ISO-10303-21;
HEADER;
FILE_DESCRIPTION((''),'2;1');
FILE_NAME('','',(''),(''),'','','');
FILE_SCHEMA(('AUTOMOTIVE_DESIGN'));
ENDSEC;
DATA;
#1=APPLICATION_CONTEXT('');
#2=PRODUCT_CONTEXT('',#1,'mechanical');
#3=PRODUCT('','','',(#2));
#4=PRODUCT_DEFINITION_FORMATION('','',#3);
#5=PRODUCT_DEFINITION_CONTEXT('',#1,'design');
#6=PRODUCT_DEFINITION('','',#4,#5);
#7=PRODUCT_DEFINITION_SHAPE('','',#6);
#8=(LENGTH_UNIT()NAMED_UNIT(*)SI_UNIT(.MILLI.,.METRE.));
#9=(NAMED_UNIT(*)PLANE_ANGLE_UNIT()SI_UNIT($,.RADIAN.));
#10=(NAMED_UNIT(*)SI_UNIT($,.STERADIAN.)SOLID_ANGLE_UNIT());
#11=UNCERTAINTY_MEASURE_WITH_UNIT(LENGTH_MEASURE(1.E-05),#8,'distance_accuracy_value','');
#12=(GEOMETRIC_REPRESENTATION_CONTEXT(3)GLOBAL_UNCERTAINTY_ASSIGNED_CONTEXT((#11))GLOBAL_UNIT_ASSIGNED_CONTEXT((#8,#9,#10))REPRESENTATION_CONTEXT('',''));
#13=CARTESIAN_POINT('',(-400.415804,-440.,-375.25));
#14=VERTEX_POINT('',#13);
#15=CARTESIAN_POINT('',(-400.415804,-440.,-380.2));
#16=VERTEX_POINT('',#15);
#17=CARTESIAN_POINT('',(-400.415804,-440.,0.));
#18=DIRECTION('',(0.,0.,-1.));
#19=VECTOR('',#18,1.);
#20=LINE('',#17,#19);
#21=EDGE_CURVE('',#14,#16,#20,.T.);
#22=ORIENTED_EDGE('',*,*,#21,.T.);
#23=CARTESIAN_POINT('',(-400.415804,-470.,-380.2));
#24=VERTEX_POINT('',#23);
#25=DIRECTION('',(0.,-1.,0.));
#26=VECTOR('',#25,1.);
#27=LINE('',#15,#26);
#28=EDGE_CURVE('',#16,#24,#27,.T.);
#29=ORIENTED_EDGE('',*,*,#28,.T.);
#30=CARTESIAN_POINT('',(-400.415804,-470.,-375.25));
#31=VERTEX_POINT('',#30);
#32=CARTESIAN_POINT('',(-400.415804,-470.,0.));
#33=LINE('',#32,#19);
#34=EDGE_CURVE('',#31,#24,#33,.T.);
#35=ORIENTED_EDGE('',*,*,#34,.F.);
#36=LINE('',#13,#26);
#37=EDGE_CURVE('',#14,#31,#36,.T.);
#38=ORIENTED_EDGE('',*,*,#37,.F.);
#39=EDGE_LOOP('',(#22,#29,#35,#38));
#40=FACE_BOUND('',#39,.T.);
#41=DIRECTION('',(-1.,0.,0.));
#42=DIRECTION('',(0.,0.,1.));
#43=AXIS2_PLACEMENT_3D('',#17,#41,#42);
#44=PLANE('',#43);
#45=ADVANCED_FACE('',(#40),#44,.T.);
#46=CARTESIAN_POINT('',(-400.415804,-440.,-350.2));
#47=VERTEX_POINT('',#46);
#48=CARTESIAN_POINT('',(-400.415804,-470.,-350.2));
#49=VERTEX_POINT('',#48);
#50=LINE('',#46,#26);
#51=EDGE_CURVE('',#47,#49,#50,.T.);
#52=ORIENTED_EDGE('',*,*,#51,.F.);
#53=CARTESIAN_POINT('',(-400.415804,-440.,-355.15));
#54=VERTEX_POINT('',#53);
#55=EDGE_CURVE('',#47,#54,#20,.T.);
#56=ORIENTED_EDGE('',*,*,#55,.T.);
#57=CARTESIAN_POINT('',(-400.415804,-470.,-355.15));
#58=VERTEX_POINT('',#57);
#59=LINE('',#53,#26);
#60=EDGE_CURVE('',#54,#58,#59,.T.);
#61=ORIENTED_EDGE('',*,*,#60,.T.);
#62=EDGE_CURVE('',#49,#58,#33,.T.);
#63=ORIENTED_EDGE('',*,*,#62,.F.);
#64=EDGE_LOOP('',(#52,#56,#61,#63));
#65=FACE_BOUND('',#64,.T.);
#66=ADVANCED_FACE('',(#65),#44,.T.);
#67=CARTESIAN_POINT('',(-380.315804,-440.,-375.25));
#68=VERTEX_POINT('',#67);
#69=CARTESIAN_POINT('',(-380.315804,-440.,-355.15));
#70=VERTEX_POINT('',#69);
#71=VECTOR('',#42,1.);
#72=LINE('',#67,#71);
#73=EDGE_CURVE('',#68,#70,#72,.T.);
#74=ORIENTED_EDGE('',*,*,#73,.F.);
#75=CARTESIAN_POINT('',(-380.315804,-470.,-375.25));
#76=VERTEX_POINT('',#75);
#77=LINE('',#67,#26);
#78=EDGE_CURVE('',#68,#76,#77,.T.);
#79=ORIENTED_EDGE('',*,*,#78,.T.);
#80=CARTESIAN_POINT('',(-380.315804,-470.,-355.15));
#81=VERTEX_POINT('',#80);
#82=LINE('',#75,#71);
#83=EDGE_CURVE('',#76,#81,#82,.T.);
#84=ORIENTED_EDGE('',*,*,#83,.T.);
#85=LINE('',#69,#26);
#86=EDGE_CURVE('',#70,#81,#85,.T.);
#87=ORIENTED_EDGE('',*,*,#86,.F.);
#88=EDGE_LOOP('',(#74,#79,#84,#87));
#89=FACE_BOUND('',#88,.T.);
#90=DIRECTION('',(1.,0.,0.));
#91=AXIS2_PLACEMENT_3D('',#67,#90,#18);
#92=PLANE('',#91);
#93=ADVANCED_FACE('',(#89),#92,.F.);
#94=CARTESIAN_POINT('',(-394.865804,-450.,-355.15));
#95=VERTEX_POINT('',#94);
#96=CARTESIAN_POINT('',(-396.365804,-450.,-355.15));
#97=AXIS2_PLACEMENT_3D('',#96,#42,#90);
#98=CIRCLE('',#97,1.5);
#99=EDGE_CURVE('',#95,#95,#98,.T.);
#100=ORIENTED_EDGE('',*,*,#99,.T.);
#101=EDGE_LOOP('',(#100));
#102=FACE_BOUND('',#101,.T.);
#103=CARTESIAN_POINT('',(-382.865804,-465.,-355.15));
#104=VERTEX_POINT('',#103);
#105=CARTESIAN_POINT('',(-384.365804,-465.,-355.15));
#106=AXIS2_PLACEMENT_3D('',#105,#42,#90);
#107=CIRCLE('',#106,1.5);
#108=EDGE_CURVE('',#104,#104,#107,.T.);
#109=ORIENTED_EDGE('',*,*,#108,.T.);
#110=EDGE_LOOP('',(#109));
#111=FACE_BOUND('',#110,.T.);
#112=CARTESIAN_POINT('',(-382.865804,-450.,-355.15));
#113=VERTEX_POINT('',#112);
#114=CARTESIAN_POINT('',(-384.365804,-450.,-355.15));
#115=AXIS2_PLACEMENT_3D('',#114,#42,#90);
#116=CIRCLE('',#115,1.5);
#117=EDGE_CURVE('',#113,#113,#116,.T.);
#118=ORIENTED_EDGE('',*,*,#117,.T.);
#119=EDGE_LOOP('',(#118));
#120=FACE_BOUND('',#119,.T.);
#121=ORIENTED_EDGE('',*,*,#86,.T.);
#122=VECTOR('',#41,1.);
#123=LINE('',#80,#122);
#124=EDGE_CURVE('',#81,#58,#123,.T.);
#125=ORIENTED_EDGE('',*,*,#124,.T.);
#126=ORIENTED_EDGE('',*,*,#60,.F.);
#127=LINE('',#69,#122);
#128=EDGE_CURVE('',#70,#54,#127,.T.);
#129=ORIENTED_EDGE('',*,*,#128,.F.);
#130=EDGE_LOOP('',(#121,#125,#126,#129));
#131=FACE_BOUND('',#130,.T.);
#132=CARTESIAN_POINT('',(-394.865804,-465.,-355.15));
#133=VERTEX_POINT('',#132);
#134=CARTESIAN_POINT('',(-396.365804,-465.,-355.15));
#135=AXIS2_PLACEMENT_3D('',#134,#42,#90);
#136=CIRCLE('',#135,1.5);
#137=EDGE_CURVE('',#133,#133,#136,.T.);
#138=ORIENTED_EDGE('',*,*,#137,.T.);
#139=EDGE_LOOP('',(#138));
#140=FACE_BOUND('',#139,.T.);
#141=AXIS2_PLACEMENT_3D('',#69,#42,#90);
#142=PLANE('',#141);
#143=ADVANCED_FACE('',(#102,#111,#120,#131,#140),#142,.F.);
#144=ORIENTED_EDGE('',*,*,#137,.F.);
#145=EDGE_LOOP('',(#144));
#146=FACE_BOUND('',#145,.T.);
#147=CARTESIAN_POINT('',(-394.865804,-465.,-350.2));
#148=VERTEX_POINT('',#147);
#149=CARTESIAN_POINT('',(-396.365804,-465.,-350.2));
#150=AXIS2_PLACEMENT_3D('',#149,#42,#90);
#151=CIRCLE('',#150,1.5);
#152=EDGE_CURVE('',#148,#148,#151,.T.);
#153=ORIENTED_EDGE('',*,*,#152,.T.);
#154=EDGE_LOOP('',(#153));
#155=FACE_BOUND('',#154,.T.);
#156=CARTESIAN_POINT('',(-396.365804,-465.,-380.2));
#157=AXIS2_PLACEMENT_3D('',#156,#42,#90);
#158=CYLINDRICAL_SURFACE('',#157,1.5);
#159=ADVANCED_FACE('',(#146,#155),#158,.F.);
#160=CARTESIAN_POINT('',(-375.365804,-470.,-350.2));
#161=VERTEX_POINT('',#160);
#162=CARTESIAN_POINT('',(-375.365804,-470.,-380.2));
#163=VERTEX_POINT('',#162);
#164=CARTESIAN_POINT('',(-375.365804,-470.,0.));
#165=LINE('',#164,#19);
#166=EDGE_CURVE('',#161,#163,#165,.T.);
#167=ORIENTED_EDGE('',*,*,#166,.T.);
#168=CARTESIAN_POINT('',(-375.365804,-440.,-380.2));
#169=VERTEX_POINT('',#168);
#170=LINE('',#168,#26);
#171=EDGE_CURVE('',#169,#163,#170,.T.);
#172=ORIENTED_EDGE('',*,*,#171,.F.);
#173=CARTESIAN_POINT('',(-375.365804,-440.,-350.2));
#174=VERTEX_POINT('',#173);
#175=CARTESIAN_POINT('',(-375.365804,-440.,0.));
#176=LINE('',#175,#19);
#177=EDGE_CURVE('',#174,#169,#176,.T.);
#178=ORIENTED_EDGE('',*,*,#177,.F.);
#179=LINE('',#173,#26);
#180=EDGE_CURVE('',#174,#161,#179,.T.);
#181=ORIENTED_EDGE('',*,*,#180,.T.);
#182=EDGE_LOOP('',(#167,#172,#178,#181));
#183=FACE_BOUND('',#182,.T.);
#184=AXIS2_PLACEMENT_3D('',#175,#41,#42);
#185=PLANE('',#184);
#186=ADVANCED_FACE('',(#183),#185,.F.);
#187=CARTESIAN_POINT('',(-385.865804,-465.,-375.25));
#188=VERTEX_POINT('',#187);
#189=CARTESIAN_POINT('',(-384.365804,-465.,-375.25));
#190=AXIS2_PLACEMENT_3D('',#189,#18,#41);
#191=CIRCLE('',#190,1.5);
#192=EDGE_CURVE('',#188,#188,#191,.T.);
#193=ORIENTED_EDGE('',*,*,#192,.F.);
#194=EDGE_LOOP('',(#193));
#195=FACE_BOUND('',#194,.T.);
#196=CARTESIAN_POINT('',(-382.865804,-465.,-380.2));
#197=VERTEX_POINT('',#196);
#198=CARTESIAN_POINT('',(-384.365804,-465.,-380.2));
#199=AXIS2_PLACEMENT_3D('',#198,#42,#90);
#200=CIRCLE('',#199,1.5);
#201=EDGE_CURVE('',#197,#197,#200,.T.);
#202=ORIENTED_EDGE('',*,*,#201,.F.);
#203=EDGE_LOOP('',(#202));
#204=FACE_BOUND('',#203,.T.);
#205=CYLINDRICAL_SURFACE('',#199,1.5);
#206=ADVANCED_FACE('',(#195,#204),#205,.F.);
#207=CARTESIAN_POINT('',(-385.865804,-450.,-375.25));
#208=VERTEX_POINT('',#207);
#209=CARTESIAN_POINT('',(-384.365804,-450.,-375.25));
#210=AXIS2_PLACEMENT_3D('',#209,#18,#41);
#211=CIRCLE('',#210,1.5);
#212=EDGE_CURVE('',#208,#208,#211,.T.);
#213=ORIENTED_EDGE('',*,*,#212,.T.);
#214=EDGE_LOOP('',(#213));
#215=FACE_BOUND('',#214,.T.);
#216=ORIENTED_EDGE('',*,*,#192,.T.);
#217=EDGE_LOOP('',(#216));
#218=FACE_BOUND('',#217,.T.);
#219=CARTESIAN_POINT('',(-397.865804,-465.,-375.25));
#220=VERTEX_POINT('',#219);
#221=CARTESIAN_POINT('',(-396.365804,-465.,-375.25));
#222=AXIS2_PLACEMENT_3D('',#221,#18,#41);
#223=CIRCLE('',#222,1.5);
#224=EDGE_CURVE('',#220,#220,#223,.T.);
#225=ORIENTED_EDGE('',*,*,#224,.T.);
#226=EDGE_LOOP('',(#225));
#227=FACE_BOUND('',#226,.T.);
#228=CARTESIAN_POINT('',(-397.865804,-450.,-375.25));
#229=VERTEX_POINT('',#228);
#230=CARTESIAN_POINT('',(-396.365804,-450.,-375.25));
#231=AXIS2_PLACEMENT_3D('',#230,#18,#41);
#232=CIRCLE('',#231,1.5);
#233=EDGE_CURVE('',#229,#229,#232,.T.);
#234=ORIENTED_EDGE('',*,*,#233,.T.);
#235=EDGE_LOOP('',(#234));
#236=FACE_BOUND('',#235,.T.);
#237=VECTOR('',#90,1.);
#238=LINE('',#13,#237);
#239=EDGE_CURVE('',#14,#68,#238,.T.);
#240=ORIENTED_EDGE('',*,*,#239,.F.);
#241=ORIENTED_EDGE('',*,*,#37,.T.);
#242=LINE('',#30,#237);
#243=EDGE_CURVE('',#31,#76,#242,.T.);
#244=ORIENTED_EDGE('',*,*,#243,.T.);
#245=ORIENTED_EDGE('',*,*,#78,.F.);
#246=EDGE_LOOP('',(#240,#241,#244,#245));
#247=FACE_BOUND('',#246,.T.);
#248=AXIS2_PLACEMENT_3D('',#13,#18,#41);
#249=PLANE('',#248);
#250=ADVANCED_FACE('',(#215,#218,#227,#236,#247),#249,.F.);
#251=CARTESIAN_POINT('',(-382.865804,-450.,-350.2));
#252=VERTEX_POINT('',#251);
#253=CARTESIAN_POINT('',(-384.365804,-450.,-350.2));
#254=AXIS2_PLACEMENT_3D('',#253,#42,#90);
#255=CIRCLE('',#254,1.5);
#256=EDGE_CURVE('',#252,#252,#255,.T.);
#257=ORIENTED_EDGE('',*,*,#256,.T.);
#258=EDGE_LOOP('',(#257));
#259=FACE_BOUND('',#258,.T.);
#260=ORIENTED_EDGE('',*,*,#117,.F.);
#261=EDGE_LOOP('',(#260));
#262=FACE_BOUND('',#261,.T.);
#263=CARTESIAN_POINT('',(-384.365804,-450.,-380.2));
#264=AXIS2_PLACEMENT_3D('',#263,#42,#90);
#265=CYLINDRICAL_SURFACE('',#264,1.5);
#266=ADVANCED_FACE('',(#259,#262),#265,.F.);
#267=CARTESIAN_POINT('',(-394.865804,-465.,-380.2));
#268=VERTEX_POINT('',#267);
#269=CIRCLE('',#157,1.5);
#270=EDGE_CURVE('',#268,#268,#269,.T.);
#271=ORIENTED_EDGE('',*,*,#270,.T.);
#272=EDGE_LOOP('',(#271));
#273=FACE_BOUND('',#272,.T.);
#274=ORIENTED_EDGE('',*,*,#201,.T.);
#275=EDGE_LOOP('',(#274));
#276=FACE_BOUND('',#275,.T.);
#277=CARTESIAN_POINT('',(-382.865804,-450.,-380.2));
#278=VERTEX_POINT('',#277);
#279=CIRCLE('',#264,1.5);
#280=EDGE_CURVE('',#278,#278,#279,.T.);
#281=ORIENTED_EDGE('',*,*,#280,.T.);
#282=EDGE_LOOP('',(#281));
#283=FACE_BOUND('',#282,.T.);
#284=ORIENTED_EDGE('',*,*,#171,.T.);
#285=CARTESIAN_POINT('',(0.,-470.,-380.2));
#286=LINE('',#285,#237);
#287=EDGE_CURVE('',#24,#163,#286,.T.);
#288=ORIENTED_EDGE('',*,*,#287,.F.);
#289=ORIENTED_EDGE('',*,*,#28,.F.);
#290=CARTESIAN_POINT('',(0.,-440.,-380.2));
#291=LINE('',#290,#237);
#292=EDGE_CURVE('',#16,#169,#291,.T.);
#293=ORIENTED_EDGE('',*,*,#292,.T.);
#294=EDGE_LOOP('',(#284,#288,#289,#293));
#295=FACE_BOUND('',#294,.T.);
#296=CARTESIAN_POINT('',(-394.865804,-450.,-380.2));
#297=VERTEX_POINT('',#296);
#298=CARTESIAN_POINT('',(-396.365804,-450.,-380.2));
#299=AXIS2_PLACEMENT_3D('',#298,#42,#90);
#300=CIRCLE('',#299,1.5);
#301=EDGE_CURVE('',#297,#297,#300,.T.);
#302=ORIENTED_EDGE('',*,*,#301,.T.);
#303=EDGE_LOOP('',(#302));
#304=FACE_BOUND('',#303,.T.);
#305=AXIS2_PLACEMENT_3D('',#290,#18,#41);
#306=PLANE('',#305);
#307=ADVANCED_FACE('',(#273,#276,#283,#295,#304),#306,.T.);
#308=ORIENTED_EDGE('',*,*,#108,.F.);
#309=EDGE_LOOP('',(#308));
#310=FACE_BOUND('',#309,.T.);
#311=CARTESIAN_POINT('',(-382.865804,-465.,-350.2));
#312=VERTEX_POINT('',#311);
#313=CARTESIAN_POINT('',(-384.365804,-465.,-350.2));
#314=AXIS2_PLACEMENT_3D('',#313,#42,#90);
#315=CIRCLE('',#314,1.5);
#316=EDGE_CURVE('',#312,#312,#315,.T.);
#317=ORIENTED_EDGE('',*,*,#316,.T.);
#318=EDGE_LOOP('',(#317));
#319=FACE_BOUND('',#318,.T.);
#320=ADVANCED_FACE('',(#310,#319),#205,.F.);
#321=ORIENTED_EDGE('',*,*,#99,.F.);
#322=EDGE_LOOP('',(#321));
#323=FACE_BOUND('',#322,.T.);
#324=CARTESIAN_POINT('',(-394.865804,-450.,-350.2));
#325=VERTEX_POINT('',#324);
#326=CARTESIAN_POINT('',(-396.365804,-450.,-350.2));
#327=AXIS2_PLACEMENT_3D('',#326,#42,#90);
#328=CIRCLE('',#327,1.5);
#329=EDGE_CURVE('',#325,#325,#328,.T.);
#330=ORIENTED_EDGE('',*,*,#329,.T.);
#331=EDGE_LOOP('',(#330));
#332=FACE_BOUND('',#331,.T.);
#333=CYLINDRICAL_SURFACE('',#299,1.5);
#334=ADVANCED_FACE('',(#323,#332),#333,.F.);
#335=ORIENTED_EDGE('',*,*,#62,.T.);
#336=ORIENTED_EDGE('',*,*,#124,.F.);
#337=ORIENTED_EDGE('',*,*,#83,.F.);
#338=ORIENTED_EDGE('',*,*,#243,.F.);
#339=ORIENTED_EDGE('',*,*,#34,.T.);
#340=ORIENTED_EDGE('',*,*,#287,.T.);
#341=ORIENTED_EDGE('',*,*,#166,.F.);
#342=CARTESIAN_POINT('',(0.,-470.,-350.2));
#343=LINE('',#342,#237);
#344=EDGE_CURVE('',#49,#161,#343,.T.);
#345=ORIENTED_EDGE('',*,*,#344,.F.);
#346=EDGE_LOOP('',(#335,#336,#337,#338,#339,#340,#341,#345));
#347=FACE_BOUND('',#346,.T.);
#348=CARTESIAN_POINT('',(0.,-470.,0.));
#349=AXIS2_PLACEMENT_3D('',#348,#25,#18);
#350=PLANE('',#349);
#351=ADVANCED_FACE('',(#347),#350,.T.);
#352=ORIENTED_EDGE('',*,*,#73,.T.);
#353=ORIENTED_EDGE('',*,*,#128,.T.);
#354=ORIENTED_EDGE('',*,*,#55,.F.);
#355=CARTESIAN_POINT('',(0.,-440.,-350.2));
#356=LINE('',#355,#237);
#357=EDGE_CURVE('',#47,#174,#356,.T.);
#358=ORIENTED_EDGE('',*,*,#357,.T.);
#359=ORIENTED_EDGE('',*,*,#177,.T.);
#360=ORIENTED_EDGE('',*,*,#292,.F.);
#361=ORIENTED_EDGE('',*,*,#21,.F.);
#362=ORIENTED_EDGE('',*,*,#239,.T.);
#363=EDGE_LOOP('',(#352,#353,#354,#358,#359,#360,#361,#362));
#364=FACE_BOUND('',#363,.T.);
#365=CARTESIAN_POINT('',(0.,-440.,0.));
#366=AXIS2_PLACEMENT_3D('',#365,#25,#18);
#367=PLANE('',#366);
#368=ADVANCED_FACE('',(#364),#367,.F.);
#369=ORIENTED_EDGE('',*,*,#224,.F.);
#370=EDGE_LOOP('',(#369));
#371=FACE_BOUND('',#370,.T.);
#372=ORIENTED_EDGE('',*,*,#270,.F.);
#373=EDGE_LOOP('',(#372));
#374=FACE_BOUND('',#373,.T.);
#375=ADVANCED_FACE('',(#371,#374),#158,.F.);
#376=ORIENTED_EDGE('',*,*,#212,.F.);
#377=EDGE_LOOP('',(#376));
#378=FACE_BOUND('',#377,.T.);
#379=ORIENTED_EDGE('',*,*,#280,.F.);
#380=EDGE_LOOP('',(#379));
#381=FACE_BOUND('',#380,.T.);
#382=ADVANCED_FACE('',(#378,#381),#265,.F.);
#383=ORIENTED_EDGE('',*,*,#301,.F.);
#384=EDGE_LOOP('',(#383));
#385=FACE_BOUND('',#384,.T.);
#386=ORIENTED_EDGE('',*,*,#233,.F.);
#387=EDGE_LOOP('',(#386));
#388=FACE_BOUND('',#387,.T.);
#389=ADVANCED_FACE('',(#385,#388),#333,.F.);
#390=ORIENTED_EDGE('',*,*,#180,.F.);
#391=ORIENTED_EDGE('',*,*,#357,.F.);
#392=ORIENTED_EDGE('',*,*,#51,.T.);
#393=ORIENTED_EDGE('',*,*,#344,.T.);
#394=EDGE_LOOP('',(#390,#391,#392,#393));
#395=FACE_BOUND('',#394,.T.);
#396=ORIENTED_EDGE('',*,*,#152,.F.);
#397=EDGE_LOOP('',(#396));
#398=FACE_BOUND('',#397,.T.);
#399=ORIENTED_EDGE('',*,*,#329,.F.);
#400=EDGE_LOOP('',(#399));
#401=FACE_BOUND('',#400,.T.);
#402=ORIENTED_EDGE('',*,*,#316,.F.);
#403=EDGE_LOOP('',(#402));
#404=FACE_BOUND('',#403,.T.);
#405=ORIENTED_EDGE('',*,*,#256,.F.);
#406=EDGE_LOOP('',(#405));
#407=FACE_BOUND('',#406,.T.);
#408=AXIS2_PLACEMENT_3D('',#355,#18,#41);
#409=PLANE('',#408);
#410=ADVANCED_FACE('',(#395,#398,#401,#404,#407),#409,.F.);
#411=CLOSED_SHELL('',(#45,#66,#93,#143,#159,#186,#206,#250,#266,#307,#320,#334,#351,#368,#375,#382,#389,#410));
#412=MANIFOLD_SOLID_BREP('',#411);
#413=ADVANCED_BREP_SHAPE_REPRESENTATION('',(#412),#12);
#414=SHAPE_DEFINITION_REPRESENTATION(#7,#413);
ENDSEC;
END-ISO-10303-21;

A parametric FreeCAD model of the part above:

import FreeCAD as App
import Part
import Sketcher
Q = App.Units.Quantity


def add_polygon(sketch, points):
    """Adds a closed chain of lines whose ends are joined by coincident constraints."""
    first, n = sketch.GeometryCount, len(points)
    for a, b in zip(points, points[1:] + points[:1]):
        sketch.addGeometry(Part.LineSegment(App.Vector(*a, 0), App.Vector(*b, 0)), False)
    for i in range(n):
        sketch.addConstraint(Sketcher.Constraint("Coincident", first + i, 2, first + (i + 1) % n, 1))

doc = App.newDocument("Part")
params = doc.addObject("Spreadsheet::Sheet", "Params")
for row, (alias, value) in enumerate([
    ("sketch1_height", "30 mm"),
    ("sketch1_width", "20.1 mm"),
    ("sketch1_width2", "25.05 mm"),
    ("pad1_length", "30 mm"),
    ("sketch2_diameter", "3 mm"),
    ("pocket1_length", "30 mm"),
], start=1):
    params.set(f"A{row}", alias)
    params.set(f"B{row}", "=" + value)
    params.setAlias(f"B{row}", alias)

body = doc.addObject("PartDesign::Body", "Body")

# Sketch on XZ plane
sketch1 = body.newObject("Sketcher::SketchObject", "Sketch")
sketch1.AttachmentSupport = (doc.getObject("XZ_Plane"), [""])
sketch1.MapMode = "FlatFace"
sketch1.AttachmentOffset = App.Placement(App.Vector(0, 0, 470), App.Rotation())
add_polygon(sketch1, [(-400.415804, -350.2), (-400.415804, -355.15), (-380.315804, -355.15), (-380.315804, -375.25), (-400.415804, -375.25), (-400.415804, -380.2), (-375.365804, -380.2), (-375.365804, -350.2)])  # lines 0-7
sketch1.addConstraint([
    Sketcher.Constraint("Vertical", 0),
    Sketcher.Constraint("Horizontal", 1),
    Sketcher.Constraint("Vertical", 2),
    Sketcher.Constraint("Horizontal", 3),
    Sketcher.Constraint("Vertical", 4),
    Sketcher.Constraint("Horizontal", 5),
    Sketcher.Constraint("Vertical", 6),
    Sketcher.Constraint("Horizontal", 7),
    Sketcher.Constraint("Vertical", 0, 2, 3, 2),
    Sketcher.Constraint("Equal", 3, 2),
    Sketcher.Constraint("Equal", 0, 4),
    Sketcher.Constraint("DistanceY", 6, 1, 6, 2, Q("30 mm")),
    Sketcher.Constraint("DistanceX", 1, 1, 1, 2, Q("20.1 mm")),
    Sketcher.Constraint("DistanceX", 5, 1, 5, 2, Q("25.05 mm")),
    Sketcher.Constraint("DistanceY", 4, 2, -1, 1, Q("380.2 mm")),
    Sketcher.Constraint("DistanceX", 0, 2, -1, 1, Q("400.415804 mm")),
])
sketch1.setExpression("Constraints[19]", "Params.sketch1_height")
sketch1.setExpression("Constraints[20]", "Params.sketch1_width")
sketch1.setExpression("Constraints[21]", "Params.sketch1_width2")
pad1 = body.newObject("PartDesign::Pad", "Pad")
pad1.Profile = sketch1
pad1.setExpression("Length", "Params.pad1_length")
pad1.Reversed = True

# Sketch on XY plane
sketch2 = body.newObject("Sketcher::SketchObject", "Sketch001")
sketch2.AttachmentSupport = (doc.getObject("XY_Plane"), [""])
sketch2.MapMode = "FlatFace"
sketch2.AttachmentOffset = App.Placement(App.Vector(0, 0, -350.2), App.Rotation())
sketch2.addGeometry([
    Part.Circle(App.Vector(-384.365804, -465, 0), App.Vector(0, 0, 1), 1.5),
    Part.Circle(App.Vector(-396.365804, -465, 0), App.Vector(0, 0, 1), 1.5),
    Part.Circle(App.Vector(-384.365804, -450, 0), App.Vector(0, 0, 1), 1.5),
    Part.Circle(App.Vector(-396.365804, -450, 0), App.Vector(0, 0, 1), 1.5),
], False)
sketch2.addConstraint([
    Sketcher.Constraint("Equal", 0, 1),
    Sketcher.Constraint("Equal", 1, 2),
    Sketcher.Constraint("Equal", 2, 3),
    Sketcher.Constraint("Horizontal", 0, 3, 1, 3),
    Sketcher.Constraint("Horizontal", 2, 3, 3, 3),
    Sketcher.Constraint("Vertical", 0, 3, 2, 3),
    Sketcher.Constraint("Vertical", 1, 3, 3, 3),
    Sketcher.Constraint("Diameter", 0, Q("3 mm")),
    Sketcher.Constraint("DistanceY", 0, 3, -1, 1, Q("465 mm")),
    Sketcher.Constraint("DistanceY", 2, 3, -1, 1, Q("450 mm")),
    Sketcher.Constraint("DistanceX", 1, 3, 0, 3, Q("12 mm")),
    Sketcher.Constraint("DistanceX", 0, 3, -1, 1, Q("384.365804 mm")),
])
sketch2.setExpression("Constraints[7]", "Params.sketch2_diameter")
pocket1 = body.newObject("PartDesign::Pocket", "Pocket")
pocket1.Profile = sketch2
pocket1.setExpression("Length", "Params.pocket1_length")

doc.recompute()
